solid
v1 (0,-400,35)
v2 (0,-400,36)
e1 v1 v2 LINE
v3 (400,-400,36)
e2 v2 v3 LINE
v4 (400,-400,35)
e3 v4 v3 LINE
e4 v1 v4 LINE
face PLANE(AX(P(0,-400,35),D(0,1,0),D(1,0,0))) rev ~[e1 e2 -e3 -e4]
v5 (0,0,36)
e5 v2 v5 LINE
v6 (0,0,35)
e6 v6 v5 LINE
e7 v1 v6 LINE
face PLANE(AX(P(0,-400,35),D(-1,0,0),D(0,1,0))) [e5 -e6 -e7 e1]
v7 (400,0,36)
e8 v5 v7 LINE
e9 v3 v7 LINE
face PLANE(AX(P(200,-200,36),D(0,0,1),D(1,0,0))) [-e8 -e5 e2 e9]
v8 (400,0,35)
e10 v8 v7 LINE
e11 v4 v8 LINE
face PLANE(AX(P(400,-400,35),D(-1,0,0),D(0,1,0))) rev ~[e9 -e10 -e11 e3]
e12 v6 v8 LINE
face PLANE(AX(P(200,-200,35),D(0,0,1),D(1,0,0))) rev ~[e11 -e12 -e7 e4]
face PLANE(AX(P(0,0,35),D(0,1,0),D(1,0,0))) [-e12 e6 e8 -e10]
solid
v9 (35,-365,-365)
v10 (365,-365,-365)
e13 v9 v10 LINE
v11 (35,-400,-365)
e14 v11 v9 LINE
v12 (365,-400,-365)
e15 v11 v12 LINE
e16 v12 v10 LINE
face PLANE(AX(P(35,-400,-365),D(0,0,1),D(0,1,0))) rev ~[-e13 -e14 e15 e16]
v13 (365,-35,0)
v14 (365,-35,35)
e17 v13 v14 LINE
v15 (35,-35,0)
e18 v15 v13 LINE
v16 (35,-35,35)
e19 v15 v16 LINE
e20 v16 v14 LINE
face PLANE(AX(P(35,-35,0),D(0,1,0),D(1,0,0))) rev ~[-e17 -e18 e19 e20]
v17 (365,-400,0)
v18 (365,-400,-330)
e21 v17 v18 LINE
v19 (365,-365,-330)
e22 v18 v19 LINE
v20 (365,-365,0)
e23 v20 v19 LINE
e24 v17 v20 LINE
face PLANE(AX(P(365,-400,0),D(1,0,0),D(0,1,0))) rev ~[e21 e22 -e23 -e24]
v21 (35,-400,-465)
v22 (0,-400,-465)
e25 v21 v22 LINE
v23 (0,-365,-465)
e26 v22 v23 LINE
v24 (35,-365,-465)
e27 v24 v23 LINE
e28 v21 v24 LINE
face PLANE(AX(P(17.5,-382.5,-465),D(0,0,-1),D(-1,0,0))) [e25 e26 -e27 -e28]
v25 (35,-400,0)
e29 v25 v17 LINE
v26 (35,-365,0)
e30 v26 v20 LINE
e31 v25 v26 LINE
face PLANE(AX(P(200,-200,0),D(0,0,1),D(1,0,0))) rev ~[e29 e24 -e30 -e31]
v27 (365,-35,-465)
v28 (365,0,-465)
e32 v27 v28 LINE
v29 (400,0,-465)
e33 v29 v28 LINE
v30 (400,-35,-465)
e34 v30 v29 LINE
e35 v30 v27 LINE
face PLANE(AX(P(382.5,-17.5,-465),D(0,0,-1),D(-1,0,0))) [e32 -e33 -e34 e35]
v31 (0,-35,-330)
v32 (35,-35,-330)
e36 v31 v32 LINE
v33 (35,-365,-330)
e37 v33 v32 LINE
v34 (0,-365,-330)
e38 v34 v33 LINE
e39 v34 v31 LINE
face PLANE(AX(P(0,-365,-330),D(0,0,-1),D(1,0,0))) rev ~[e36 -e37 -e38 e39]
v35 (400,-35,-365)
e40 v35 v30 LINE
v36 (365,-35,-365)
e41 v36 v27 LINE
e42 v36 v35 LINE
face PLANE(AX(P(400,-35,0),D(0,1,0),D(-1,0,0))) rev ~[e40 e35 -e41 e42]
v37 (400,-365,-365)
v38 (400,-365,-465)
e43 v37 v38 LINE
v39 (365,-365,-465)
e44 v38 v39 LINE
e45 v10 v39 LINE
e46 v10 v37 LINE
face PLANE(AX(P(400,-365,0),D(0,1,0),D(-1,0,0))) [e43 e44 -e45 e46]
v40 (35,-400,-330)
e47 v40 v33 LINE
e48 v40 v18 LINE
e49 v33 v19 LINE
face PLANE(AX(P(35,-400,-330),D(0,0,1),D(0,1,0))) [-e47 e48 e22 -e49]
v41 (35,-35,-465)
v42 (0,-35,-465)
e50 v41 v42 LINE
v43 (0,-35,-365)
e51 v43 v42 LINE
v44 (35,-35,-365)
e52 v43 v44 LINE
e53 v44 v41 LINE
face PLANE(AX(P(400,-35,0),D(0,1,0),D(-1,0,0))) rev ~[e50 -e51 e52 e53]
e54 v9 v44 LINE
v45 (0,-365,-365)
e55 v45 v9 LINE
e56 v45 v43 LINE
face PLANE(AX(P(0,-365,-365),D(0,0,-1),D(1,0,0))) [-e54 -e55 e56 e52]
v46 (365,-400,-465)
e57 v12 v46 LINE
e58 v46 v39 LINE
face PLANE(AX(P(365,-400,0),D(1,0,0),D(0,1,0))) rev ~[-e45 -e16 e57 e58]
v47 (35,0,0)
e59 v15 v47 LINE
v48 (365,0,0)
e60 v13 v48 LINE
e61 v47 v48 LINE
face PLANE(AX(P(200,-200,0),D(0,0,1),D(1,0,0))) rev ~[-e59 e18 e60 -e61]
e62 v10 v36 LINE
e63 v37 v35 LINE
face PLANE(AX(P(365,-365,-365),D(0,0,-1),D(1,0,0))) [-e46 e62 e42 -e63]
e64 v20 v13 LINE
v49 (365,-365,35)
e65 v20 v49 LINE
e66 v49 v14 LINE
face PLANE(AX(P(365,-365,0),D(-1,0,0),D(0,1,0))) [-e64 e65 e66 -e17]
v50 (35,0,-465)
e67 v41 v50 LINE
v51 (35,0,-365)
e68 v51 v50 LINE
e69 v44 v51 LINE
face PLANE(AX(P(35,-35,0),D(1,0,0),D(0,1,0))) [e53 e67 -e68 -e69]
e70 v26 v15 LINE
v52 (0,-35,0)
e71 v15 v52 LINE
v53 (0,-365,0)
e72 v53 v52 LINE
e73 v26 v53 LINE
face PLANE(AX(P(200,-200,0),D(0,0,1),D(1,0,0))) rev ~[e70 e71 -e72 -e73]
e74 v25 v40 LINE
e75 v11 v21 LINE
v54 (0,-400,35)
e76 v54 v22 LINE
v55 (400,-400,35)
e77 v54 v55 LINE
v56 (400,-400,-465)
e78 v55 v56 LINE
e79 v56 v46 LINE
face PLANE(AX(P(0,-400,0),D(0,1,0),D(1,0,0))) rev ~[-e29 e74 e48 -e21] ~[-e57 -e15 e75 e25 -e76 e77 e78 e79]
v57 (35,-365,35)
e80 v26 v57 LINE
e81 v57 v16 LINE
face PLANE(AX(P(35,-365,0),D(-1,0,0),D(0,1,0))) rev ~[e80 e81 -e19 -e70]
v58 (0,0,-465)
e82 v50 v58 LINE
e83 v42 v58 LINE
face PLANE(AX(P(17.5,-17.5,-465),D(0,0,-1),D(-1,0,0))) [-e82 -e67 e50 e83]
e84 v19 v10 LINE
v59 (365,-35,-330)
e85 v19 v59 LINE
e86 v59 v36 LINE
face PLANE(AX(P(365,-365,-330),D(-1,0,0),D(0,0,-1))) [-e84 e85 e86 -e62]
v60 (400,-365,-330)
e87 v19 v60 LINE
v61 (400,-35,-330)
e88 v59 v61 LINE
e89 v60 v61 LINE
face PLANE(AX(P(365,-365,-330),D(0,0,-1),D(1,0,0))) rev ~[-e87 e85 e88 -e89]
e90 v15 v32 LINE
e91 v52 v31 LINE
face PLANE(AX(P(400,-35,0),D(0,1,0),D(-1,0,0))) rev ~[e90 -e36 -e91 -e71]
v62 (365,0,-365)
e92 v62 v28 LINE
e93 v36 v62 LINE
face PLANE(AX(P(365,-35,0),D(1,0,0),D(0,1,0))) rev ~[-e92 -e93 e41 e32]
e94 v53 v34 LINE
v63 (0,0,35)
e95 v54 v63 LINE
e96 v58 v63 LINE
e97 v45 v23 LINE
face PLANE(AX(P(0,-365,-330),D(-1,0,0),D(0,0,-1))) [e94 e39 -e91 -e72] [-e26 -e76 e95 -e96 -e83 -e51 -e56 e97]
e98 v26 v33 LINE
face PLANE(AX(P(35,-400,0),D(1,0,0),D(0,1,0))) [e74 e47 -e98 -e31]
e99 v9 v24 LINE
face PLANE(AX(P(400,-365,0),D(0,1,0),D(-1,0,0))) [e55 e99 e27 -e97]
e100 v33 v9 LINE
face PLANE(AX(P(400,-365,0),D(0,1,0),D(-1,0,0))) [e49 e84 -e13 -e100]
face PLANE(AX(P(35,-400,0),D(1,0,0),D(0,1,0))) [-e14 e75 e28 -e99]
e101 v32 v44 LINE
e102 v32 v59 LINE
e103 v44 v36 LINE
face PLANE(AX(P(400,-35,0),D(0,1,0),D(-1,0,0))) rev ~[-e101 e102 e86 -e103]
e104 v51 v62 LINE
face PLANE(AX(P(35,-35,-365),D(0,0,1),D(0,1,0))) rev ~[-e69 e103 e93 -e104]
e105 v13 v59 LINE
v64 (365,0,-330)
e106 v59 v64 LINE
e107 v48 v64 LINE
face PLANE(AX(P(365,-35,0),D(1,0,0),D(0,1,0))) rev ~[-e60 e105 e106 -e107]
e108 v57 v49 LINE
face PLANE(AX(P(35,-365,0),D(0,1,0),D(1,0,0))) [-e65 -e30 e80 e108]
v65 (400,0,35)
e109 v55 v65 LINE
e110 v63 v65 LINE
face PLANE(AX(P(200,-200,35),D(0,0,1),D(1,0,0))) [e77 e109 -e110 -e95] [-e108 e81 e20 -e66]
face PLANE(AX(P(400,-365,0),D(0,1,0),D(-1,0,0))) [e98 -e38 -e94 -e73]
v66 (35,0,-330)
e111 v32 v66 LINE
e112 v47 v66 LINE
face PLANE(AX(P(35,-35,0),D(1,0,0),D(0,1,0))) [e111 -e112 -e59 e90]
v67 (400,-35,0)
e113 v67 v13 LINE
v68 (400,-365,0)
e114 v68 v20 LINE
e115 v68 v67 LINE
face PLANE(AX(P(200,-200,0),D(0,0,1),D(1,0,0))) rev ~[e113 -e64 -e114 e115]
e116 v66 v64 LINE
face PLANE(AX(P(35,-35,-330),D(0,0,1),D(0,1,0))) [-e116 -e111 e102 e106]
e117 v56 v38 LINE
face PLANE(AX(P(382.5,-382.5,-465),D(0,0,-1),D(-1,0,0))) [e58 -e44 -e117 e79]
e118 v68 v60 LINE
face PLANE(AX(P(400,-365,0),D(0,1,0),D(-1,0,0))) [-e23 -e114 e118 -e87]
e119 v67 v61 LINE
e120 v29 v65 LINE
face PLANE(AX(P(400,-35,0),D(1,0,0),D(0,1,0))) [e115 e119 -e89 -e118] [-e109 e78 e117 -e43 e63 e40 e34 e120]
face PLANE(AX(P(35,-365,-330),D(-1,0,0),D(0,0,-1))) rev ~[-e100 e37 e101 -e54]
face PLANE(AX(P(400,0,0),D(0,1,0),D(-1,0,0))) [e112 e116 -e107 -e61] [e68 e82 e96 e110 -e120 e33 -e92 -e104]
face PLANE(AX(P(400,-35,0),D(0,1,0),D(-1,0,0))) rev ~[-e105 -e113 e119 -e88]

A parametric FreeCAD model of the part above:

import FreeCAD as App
import Part
import Sketcher

V = App.Vector
Q = App.Units.Quantity

doc = App.newDocument("Part")
params = doc.addObject("Spreadsheet::Sheet", "Params")
for row, (alias, value) in enumerate([
    ("sketch1_width", "400 mm"),
    ("sketch1_width2", "330 mm"),
    ("pad1_length", "35 mm"),
    ("sketch2_width", "35 mm"),
    ("pad2_length", "465 mm"),
    ("sketch3_width", "35 mm"),
    ("pad3_length", "330 mm"),
    ("sketch4_width", "35 mm"),
    ("pad4_length", "330 mm"),
    ("sketch5_width", "400 mm"),
    ("pad5_length", "1 mm"),
], start=1):
    params.set(f"A{row}", alias)
    params.set(f"B{row}", "=" + value)
    params.setAlias(f"B{row}", alias)

body = doc.addObject("PartDesign::Body", "Body")

# Sketch on XY plane
sketch1 = body.newObject("Sketcher::SketchObject", "Sketch")
sketch1.AttachmentSupport = (doc.getObject("XY_Plane"), [""])
sketch1.MapMode = "FlatFace"
sketch1.addGeometry([
    Part.LineSegment(V(0, 0, 0), V(0, -400, 0)),  # 0
    Part.LineSegment(V(0, -400, 0), V(400, -400, 0)),  # 1
    Part.LineSegment(V(400, -400, 0), V(400, 0, 0)),  # 2
    Part.LineSegment(V(400, 0, 0), V(0, 0, 0)),  # 3
    Part.LineSegment(V(365, -365, 0), V(35, -365, 0)),  # 4
    Part.LineSegment(V(35, -365, 0), V(35, -35, 0)),  # 5
    Part.LineSegment(V(35, -35, 0), V(365, -35, 0)),  # 6
    Part.LineSegment(V(365, -35, 0), V(365, -365, 0)),  # 7
], False)
sketch1.addConstraint([
    Sketcher.Constraint("Coincident", 0, 2, 1, 1),
    Sketcher.Constraint("Coincident", 1, 2, 2, 1),
    Sketcher.Constraint("Coincident", 2, 2, 3, 1),
    Sketcher.Constraint("Coincident", 3, 2, 0, 1),
    Sketcher.Constraint("Coincident", 4, 2, 5, 1),
    Sketcher.Constraint("Coincident", 5, 2, 6, 1),
    Sketcher.Constraint("Coincident", 6, 2, 7, 1),
    Sketcher.Constraint("Coincident", 7, 2, 4, 1),
    Sketcher.Constraint("Vertical", 0),
    Sketcher.Constraint("Horizontal", 1),
    Sketcher.Constraint("Vertical", 2),
    Sketcher.Constraint("Horizontal", 3),
    Sketcher.Constraint("Horizontal", 4),
    Sketcher.Constraint("Vertical", 5),
    Sketcher.Constraint("Horizontal", 6),
    Sketcher.Constraint("Vertical", 7),
    Sketcher.Constraint("Coincident", 3, 2, -1, 1),
    Sketcher.Constraint("Equal", 3, 0),
    Sketcher.Constraint("Equal", 6, 5),
    Sketcher.Constraint("DistanceX", 1, 1, 1, 2, Q("400 mm")),
    Sketcher.Constraint("DistanceX", 4, 2, 4, 1, Q("330 mm")),
    Sketcher.Constraint("DistanceX", -1, 1, 4, 2, Q("35 mm")),
    Sketcher.Constraint("DistanceY", 4, 2, -1, 1, Q("365 mm")),
])
sketch1.setExpression("Constraints[19]", "Params.sketch1_width")
sketch1.setExpression("Constraints[20]", "Params.sketch1_width2")
pad1 = body.newObject("PartDesign::Pad", "Pad")
pad1.Profile = sketch1
pad1.setExpression("Length", "Params.pad1_length")

# Sketch on XY plane
sketch2 = body.newObject("Sketcher::SketchObject", "Sketch001")
sketch2.AttachmentSupport = (doc.getObject("XY_Plane"), [""])
sketch2.MapMode = "FlatFace"
sketch2.addGeometry([
    Part.LineSegment(V(400, 0, 0), V(400, -35, 0)),  # 0
    Part.LineSegment(V(400, -35, 0), V(365, -35, 0)),  # 1
    Part.LineSegment(V(365, -35, 0), V(365, 0, 0)),  # 2
    Part.LineSegment(V(365, 0, 0), V(400, 0, 0)),  # 3
    Part.LineSegment(V(35, 0, 0), V(35, -35, 0)),  # 4
    Part.LineSegment(V(35, -35, 0), V(0, -35, 0)),  # 5
    Part.LineSegment(V(0, -35, 0), V(0, 0, 0)),  # 6
    Part.LineSegment(V(0, 0, 0), V(35, 0, 0)),  # 7
    Part.LineSegment(V(35, -365, 0), V(35, -400, 0)),  # 8
    Part.LineSegment(V(35, -400, 0), V(0, -400, 0)),  # 9
    Part.LineSegment(V(0, -400, 0), V(0, -365, 0)),  # 10
    Part.LineSegment(V(0, -365, 0), V(35, -365, 0)),  # 11
    Part.LineSegment(V(400, -365, 0), V(400, -400, 0)),  # 12
    Part.LineSegment(V(400, -400, 0), V(365, -400, 0)),  # 13
    Part.LineSegment(V(365, -400, 0), V(365, -365, 0)),  # 14
    Part.LineSegment(V(365, -365, 0), V(400, -365, 0)),  # 15
], False)
sketch2.addConstraint([
    Sketcher.Constraint("Coincident", 0, 2, 1, 1),
    Sketcher.Constraint("Coincident", 1, 2, 2, 1),
    Sketcher.Constraint("Coincident", 2, 2, 3, 1),
    Sketcher.Constraint("Coincident", 3, 2, 0, 1),
    Sketcher.Constraint("Coincident", 4, 2, 5, 1),
    Sketcher.Constraint("Coincident", 5, 2, 6, 1),
    Sketcher.Constraint("Coincident", 6, 2, 7, 1),
    Sketcher.Constraint("Coincident", 7, 2, 4, 1),
    Sketcher.Constraint("Coincident", 8, 2, 9, 1),
    Sketcher.Constraint("Coincident", 9, 2, 10, 1),
    Sketcher.Constraint("Coincident", 10, 2, 11, 1),
    Sketcher.Constraint("Coincident", 11, 2, 8, 1),
    Sketcher.Constraint("Coincident", 12, 2, 13, 1),
    Sketcher.Constraint("Coincident", 13, 2, 14, 1),
    Sketcher.Constraint("Coincident", 14, 2, 15, 1),
    Sketcher.Constraint("Coincident", 15, 2, 12, 1),
    Sketcher.Constraint("Vertical", 0),
    Sketcher.Constraint("Horizontal", 1),
    Sketcher.Constraint("Vertical", 2),
    Sketcher.Constraint("Horizontal", 3),
    Sketcher.Constraint("Vertical", 4),
    Sketcher.Constraint("Horizontal", 5),
    Sketcher.Constraint("Vertical", 6),
    Sketcher.Constraint("Horizontal", 7),
    Sketcher.Constraint("Vertical", 8),
    Sketcher.Constraint("Horizontal", 9),
    Sketcher.Constraint("Vertical", 10),
    Sketcher.Constraint("Horizontal", 11),
    Sketcher.Constraint("Vertical", 12),
    Sketcher.Constraint("Horizontal", 13),
    Sketcher.Constraint("Vertical", 14),
    Sketcher.Constraint("Horizontal", 15),
    Sketcher.Constraint("Coincident", 6, 2, -1, 1),
    Sketcher.Constraint("PointOnObject", 2, 2, -1),
    Sketcher.Constraint("PointOnObject", 9, 2, -2),
    Sketcher.Constraint("Horizontal", 1, 2, 4, 2),
    Sketcher.Constraint("Horizontal", 9, 2, 12, 2),
    Sketcher.Constraint("Horizontal", 11, 2, 14, 2),
    Sketcher.Constraint("Vertical", 7, 2, 8, 2),
    Sketcher.Constraint("Vertical", 3, 2, 12, 2),
    Sketcher.Constraint("Vertical", 2, 2, 13, 2),
    Sketcher.Constraint("Equal", 3, 5),
    Sketcher.Constraint("Equal", 15, 0),
    Sketcher.Constraint("Equal", 6, 8),
    Sketcher.Constraint("DistanceX", 1, 2, 1, 1, Q("35 mm")),
    Sketcher.Constraint("DistanceX", -1, 1, 0, 2, Q("400 mm")),
    Sketcher.Constraint("DistanceY", 8, 2, -1, 1, Q("400 mm")),
])
sketch2.setExpression("Constraints[44]", "Params.sketch2_width")
pad2 = body.newObject("PartDesign::Pad", "Pad001")
pad2.Profile = sketch2
pad2.setExpression("Length", "Params.pad2_length")
pad2.Reversed = True

# Sketch on YZ plane
sketch3 = body.newObject("Sketcher::SketchObject", "Sketch002")
sketch3.AttachmentSupport = (doc.getObject("YZ_Plane"), [""])
sketch3.MapMode = "FlatFace"
sketch3.AttachmentOffset = App.Placement(V(0, 0, 35), App.Rotation())
sketch3.addGeometry([
    Part.LineSegment(V(0, -330, 0), V(-35, -330, 0)),  # 0
    Part.LineSegment(V(-35, -330, 0), V(-35, -365, 0)),  # 1
    Part.LineSegment(V(-35, -365, 0), V(0, -365, 0)),  # 2
    Part.LineSegment(V(0, -365, 0), V(0, -330, 0)),  # 3
    Part.LineSegment(V(-365, -330, 0), V(-400, -330, 0)),  # 4
    Part.LineSegment(V(-400, -330, 0), V(-400, -365, 0)),  # 5
    Part.LineSegment(V(-400, -365, 0), V(-365, -365, 0)),  # 6
    Part.LineSegment(V(-365, -365, 0), V(-365, -330, 0)),  # 7
], False)
sketch3.addConstraint([
    Sketcher.Constraint("Coincident", 0, 2, 1, 1),
    Sketcher.Constraint("Coincident", 1, 2, 2, 1),
    Sketcher.Constraint("Coincident", 2, 2, 3, 1),
    Sketcher.Constraint("Coincident", 3, 2, 0, 1),
    Sketcher.Constraint("Coincident", 4, 2, 5, 1),
    Sketcher.Constraint("Coincident", 5, 2, 6, 1),
    Sketcher.Constraint("Coincident", 6, 2, 7, 1),
    Sketcher.Constraint("Coincident", 7, 2, 4, 1),
    Sketcher.Constraint("Horizontal", 0),
    Sketcher.Constraint("Vertical", 1),
    Sketcher.Constraint("Horizontal", 2),
    Sketcher.Constraint("Vertical", 3),
    Sketcher.Constraint("Horizontal", 4),
    Sketcher.Constraint("Vertical", 5),
    Sketcher.Constraint("Horizontal", 6),
    Sketcher.Constraint("Vertical", 7),
    Sketcher.Constraint("PointOnObject", 2, 2, -2),
    Sketcher.Constraint("Horizontal", 3, 2, 4, 2),
    Sketcher.Constraint("Horizontal", 2, 2, 5, 2),
    Sketcher.Constraint("Equal", 2, 4),
    Sketcher.Constraint("Equal", 6, 1),
    Sketcher.Constraint("DistanceX", 0, 2, 0, 1, Q("35 mm")),
    Sketcher.Constraint("DistanceY", 0, 2, -1, 1, Q("330 mm")),
    Sketcher.Constraint("DistanceX", 4, 2, -1, 1, Q("400 mm")),
])
sketch3.setExpression("Constraints[21]", "Params.sketch3_width")
pad3 = body.newObject("PartDesign::Pad", "Pad002")
pad3.Profile = sketch3
pad3.setExpression("Length", "Params.pad3_length")

# Sketch on XZ plane
sketch4 = body.newObject("Sketcher::SketchObject", "Sketch003")
sketch4.AttachmentSupport = (doc.getObject("XZ_Plane"), [""])
sketch4.MapMode = "FlatFace"
sketch4.AttachmentOffset = App.Placement(V(0, 0, 365), App.Rotation())
sketch4.addGeometry([
    Part.LineSegment(V(0, -365, 0), V(0, -330, 0)),  # 0
    Part.LineSegment(V(0, -330, 0), V(35, -330, 0)),  # 1
    Part.LineSegment(V(35, -330, 0), V(35, -365, 0)),  # 2
    Part.LineSegment(V(35, -365, 0), V(0, -365, 0)),  # 3
    Part.LineSegment(V(365, -365, 0), V(365, -330, 0)),  # 4
    Part.LineSegment(V(365, -330, 0), V(400, -330, 0)),  # 5
    Part.LineSegment(V(400, -330, 0), V(400, -365, 0)),  # 6
    Part.LineSegment(V(400, -365, 0), V(365, -365, 0)),  # 7
], False)
sketch4.addConstraint([
    Sketcher.Constraint("Coincident", 0, 2, 1, 1),
    Sketcher.Constraint("Coincident", 1, 2, 2, 1),
    Sketcher.Constraint("Coincident", 2, 2, 3, 1),
    Sketcher.Constraint("Coincident", 3, 2, 0, 1),
    Sketcher.Constraint("Coincident", 4, 2, 5, 1),
    Sketcher.Constraint("Coincident", 5, 2, 6, 1),
    Sketcher.Constraint("Coincident", 6, 2, 7, 1),
    Sketcher.Constraint("Coincident", 7, 2, 4, 1),
    Sketcher.Constraint("Vertical", 0),
    Sketcher.Constraint("Horizontal", 1),
    Sketcher.Constraint("Vertical", 2),
    Sketcher.Constraint("Horizontal", 3),
    Sketcher.Constraint("Vertical", 4),
    Sketcher.Constraint("Horizontal", 5),
    Sketcher.Constraint("Vertical", 6),
    Sketcher.Constraint("Horizontal", 7),
    Sketcher.Constraint("PointOnObject", 0, 2, -2),
    Sketcher.Constraint("Horizontal", 1, 2, 4, 2),
    Sketcher.Constraint("Horizontal", 3, 2, 6, 2),
    Sketcher.Constraint("Equal", 3, 5),
    Sketcher.Constraint("Equal", 7, 0),
    Sketcher.Constraint("DistanceX", 1, 1, 1, 2, Q("35 mm")),
    Sketcher.Constraint("DistanceY", 0, 2, -1, 1, Q("330 mm")),
    Sketcher.Constraint("DistanceX", -1, 1, 4, 2, Q("365 mm")),
])
sketch4.setExpression("Constraints[21]", "Params.sketch4_width")
pad4 = body.newObject("PartDesign::Pad", "Pad003")
pad4.Profile = sketch4
pad4.setExpression("Length", "Params.pad4_length")
pad4.Reversed = True
body2 = doc.addObject("PartDesign::Body", "Body001")

# Sketch on XY plane
sketch5 = body2.newObject("Sketcher::SketchObject", "Sketch004")
sketch5.AttachmentSupport = (doc.getObject("XY_Plane001"), [""])
sketch5.MapMode = "FlatFace"
sketch5.AttachmentOffset = App.Placement(V(0, 0, 35), App.Rotation())
sketch5.addGeometry([
    Part.LineSegment(V(0, 0, 0), V(0, -400, 0)),
    Part.LineSegment(V(0, -400, 0), V(400, -400, 0)),
    Part.LineSegment(V(400, -400, 0), V(400, 0, 0)),
    Part.LineSegment(V(400, 0, 0), V(0, 0, 0)),
], False)
sketch5.addConstraint([
    Sketcher.Constraint("Coincident", 0, 2, 1, 1),
    Sketcher.Constraint("Coincident", 1, 2, 2, 1),
    Sketcher.Constraint("Coincident", 2, 2, 3, 1),
    Sketcher.Constraint("Coincident", 3, 2, 0, 1),
    Sketcher.Constraint("Vertical", 0),
    Sketcher.Constraint("Horizontal", 1),
    Sketcher.Constraint("Vertical", 2),
    Sketcher.Constraint("Horizontal", 3),
    Sketcher.Constraint("Coincident", 3, 2, -1, 1),
    Sketcher.Constraint("Equal", 3, 0),
    Sketcher.Constraint("DistanceX", 1, 1, 1, 2, Q("400 mm")),
])
sketch5.setExpression("Constraints[10]", "Params.sketch5_width")
pad5 = body2.newObject("PartDesign::Pad", "Pad004")
pad5.Profile = sketch5
pad5.setExpression("Length", "Params.pad5_length")

doc.recompute()
